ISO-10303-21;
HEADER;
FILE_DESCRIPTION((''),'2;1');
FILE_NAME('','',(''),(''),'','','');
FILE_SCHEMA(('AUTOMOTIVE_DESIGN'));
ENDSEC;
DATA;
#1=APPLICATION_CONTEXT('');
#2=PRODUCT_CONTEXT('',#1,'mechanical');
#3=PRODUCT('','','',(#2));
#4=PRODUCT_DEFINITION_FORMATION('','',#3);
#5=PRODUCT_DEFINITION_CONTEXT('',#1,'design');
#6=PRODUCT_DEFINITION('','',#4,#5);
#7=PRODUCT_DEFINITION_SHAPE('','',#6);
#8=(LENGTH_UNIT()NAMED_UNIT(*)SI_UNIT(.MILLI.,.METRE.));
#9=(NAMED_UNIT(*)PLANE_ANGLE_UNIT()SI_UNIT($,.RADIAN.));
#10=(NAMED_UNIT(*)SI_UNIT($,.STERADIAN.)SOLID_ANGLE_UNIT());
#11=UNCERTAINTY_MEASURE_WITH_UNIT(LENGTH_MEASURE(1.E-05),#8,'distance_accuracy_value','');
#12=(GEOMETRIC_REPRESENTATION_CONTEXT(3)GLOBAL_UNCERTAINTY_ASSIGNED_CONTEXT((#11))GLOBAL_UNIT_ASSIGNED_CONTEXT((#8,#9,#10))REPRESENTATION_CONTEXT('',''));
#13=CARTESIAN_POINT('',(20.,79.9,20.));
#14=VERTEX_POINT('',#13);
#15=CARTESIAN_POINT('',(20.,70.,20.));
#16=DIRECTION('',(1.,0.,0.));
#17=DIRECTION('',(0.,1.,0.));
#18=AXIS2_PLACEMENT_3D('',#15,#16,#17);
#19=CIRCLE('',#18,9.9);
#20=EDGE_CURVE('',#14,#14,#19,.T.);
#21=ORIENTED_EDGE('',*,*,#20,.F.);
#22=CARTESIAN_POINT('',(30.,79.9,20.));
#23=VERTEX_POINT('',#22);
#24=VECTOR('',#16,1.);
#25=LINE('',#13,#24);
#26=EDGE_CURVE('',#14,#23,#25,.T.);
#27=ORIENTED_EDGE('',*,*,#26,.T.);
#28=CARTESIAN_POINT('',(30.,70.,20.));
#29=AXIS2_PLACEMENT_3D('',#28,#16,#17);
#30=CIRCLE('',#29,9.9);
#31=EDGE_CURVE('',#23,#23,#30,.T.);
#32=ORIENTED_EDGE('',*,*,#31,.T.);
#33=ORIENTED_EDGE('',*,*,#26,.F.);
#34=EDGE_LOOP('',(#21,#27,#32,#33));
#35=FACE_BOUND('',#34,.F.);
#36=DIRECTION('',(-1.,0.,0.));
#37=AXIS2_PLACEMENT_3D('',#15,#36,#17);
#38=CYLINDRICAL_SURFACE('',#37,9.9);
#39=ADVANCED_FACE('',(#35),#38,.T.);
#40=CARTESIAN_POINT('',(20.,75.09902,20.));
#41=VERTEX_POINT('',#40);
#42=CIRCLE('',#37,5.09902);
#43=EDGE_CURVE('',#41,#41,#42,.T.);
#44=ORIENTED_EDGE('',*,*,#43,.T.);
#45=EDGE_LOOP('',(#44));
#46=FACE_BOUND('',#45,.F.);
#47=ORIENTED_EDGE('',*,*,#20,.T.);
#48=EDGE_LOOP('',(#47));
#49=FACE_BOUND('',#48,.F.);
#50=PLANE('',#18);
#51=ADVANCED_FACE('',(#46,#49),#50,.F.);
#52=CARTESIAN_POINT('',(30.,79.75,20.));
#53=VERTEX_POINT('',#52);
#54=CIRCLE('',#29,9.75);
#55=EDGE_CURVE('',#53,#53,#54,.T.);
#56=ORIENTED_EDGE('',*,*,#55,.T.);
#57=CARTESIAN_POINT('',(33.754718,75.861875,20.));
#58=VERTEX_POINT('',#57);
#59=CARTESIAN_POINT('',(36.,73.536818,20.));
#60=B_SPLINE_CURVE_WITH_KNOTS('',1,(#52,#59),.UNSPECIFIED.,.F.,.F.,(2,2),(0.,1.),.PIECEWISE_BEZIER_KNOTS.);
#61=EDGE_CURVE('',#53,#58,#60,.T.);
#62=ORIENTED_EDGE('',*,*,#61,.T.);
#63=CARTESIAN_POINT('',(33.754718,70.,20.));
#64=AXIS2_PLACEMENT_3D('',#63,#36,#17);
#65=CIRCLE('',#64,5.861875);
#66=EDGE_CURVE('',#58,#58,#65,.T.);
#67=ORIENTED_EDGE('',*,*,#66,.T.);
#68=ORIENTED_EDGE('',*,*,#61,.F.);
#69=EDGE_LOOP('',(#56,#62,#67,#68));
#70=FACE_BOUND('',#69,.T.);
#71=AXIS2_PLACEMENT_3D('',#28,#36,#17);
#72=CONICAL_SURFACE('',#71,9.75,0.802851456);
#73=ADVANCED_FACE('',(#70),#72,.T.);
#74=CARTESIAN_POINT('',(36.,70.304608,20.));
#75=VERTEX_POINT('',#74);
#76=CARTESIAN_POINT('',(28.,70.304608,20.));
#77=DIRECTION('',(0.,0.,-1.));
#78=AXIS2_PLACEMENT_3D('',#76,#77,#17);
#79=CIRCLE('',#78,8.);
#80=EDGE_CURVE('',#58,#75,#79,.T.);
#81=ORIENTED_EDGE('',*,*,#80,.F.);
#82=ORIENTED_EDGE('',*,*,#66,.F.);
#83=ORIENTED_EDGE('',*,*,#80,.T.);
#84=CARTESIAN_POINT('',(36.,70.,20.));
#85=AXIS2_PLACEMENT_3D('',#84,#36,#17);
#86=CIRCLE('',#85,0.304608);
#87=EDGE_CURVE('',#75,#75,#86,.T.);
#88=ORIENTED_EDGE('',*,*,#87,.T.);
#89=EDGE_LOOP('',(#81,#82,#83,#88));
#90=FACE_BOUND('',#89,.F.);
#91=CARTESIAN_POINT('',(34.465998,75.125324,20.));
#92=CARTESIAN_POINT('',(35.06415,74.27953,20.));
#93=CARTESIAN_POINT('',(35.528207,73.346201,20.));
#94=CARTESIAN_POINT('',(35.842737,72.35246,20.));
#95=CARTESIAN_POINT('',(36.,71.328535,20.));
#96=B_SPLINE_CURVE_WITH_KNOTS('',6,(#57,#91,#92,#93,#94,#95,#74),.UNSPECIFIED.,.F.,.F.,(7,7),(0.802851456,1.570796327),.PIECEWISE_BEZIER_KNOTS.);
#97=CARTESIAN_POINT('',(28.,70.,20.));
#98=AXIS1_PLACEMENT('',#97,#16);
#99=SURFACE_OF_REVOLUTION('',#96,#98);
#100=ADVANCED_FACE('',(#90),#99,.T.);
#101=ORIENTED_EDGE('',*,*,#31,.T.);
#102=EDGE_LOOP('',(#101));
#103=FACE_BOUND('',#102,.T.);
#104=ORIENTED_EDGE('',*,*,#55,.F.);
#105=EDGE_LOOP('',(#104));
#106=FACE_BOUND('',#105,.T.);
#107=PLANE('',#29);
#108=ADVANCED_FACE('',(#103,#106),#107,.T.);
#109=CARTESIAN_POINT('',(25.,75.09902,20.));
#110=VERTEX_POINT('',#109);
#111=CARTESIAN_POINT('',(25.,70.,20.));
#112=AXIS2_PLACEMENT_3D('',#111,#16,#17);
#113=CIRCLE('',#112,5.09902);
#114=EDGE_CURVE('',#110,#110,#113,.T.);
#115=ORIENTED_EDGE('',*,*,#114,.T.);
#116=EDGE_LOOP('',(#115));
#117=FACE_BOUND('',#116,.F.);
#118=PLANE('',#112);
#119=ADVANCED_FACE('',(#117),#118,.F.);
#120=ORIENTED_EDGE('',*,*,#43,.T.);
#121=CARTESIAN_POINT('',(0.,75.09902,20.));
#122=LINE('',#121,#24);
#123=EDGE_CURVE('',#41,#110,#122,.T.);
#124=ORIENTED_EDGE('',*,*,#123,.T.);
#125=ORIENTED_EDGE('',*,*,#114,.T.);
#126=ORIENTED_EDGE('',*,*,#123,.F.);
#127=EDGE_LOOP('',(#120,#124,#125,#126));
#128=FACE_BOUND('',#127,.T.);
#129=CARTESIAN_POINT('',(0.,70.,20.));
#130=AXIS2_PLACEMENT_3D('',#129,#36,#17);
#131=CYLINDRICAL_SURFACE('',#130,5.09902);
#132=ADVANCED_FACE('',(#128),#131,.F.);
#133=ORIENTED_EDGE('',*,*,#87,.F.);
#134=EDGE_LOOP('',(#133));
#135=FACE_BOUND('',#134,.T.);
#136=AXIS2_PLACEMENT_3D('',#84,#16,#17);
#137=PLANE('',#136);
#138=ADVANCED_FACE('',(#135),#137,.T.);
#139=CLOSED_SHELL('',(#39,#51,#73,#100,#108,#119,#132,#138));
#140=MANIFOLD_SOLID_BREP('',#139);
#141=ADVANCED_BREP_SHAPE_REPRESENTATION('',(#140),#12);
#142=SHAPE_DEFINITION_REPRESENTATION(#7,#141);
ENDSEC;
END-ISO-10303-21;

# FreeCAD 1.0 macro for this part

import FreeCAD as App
import Part
import Sketcher

V = App.Vector
Q = App.Units.Quantity


def edges_at(feature, points):
    """Names of the edges that pass closest to the given points."""
    edges = feature.Shape.Edges
    near = lambda p: min(range(len(edges)), key=lambda i: edges[i].distToShape(Part.Vertex(*p))[0])
    return sorted({f"Edge{near(p) + 1}" for p in points})

doc = App.newDocument("Part")
body = doc.addObject("PartDesign::Body", "Body")

sketch1 = body.newObject("Sketcher::SketchObject", "Sketch")
sketch1.AttachmentSupport = (doc.getObject("YZ_Plane"), [""])
sketch1.MapMode = "FlatFace"
sketch1.AttachmentOffset = App.Placement(V(0, 0, 20), App.Rotation())
sketch1.addGeometry(Part.Circle(V(0, 0, 0), V(0, 0, 1), 10), False)
sketch1.addConstraint([
    Sketcher.Constraint("Coincident", 0, 3, -1, 1),
    Sketcher.Constraint("Diameter", 0, Q("19.8 mm")),
])
pad1 = body.newObject("PartDesign::Pad", "Pad")
pad1.Profile = sketch1
pad1.Length = 10

sketch2 = body.newObject("Sketcher::SketchObject", "Sketch001")
sketch2.AttachmentSupport = (doc.getObject("YZ_Plane"), [""])
sketch2.MapMode = "FlatFace"
sketch2.AttachmentOffset = App.Placement(V(0, 0, 30), App.Rotation())
sketch2.addGeometry(Part.Circle(V(0, 0, 0), V(0, 0, 1), 10), False)
sketch2.addConstraint([
    Sketcher.Constraint("Coincident", 0, 3, -1, 1),
    Sketcher.Constraint("Diameter", 0, Q("19.5 mm")),
])
pad2 = body.newObject("PartDesign::Pad", "Pad001")
pad2.Profile = sketch2
pad2.Length = 6
pad2.TaperAngle = -46

sketch3 = body.newObject("Sketcher::SketchObject", "Sketch002")
sketch3.AttachmentSupport = (doc.getObject("YZ_Plane"), [""])
sketch3.MapMode = "FlatFace"
sketch3.addGeometry(Part.Circle(V(0, 0, 0), V(0, 0, 1), 5), False)
sketch3.addConstraint([
    Sketcher.Constraint("Coincident", 0, 3, -1, 1),
    Sketcher.Constraint("Diameter", 0, Q("10.19804 mm")),
])
pocket1 = body.newObject("PartDesign::Pocket", "Pocket")
pocket1.Profile = sketch3
pocket1.Length = 25
pocket1.Reversed = True
doc.recompute()

fillet = body.newObject("PartDesign::Fillet", "Fillet")
fillet.Base = (pocket1, edges_at(pocket1, [(36, -3.537, 0)]))
fillet.Radius = 8
body2 = doc.addObject("PartDesign::Body", "Body001")
doc.recompute()

body.Placement = App.Placement(V(0, 70, 20), App.Rotation(V(0, 0, 1), 0))
boolean = body2.newObject("PartDesign::Boolean", "Boolean")
boolean.Type = "Fuse"
boolean.addObjects([body])

doc.recompute()
